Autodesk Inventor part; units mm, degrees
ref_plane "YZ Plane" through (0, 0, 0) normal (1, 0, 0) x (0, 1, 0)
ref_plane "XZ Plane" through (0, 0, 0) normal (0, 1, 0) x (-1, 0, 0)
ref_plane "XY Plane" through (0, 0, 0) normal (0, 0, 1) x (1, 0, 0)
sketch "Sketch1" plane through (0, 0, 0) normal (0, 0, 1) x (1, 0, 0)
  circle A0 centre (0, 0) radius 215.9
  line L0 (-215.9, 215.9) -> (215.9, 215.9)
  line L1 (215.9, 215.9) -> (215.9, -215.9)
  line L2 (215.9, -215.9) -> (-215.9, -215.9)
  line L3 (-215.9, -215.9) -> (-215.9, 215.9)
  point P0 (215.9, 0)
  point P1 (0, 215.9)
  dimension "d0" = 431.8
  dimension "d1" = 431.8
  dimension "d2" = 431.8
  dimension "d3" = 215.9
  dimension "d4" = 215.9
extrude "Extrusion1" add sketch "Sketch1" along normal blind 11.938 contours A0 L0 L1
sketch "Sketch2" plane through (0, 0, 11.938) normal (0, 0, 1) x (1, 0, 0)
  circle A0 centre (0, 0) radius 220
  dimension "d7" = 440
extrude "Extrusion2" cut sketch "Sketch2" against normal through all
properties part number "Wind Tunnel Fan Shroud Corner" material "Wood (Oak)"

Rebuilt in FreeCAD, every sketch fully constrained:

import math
import FreeCAD as App
import Part
import Sketcher
from FreeCAD import Vector
Q = App.Units.Quantity

doc = App.newDocument("Part")
body = doc.addObject("PartDesign::Body", "Body")

# Sketch on XY plane
sketch1 = body.newObject("Sketcher::SketchObject", "Sketch")
sketch1.AttachmentSupport = (doc.getObject("XY_Plane"), [""])
sketch1.MapMode = "FlatFace"
sketch1.addGeometry([
    Part.ArcOfCircle(Part.Circle(Vector(0, 0, 0), Vector(0, 0, 1), 215.9), math.radians(0), math.radians(90)),
    Part.LineSegment(Vector(215.9, 0, 0), Vector(215.9, 215.9, 0)),
    Part.LineSegment(Vector(215.9, 215.9, 0), Vector(0, 215.9, 0)),
], False)
sketch1.addConstraint([
    Sketcher.Constraint("Tangent", 0, 1, 1, 1),
    Sketcher.Constraint("Coincident", 1, 2, 2, 1),
    Sketcher.Constraint("Tangent", 2, 2, 0, 2),
    Sketcher.Constraint("Vertical", 1),
    Sketcher.Constraint("Horizontal", 2),
    Sketcher.Constraint("Coincident", 0, 3, -1, 1),
    Sketcher.Constraint("Radius", 0, Q("8.5 in")),
])
pad1 = body.newObject("PartDesign::Pad", "Pad")
pad1.Profile = sketch1
pad1.Length = Q("0.47 in")

# Sketch on XY plane
sketch2 = body.newObject("Sketcher::SketchObject", "Sketch001")
sketch2.AttachmentSupport = (doc.getObject("XY_Plane"), [""])
sketch2.MapMode = "FlatFace"
sketch2.AttachmentOffset = App.Placement(Vector(0, 0, 0.47 * 25.4), App.Rotation())
sketch2.addGeometry(Part.Circle(Vector(0, 0, 0), Vector(0, 0, 1), 220), False)
sketch2.addConstraint([
    Sketcher.Constraint("Coincident", 0, 3, -1, 1),
    Sketcher.Constraint("Diameter", 0, 440.0),
])
pocket1 = body.newObject("PartDesign::Pocket", "Pocket")
pocket1.Profile = sketch2
pocket1.Type = "ThroughAll"

doc.recompute()
